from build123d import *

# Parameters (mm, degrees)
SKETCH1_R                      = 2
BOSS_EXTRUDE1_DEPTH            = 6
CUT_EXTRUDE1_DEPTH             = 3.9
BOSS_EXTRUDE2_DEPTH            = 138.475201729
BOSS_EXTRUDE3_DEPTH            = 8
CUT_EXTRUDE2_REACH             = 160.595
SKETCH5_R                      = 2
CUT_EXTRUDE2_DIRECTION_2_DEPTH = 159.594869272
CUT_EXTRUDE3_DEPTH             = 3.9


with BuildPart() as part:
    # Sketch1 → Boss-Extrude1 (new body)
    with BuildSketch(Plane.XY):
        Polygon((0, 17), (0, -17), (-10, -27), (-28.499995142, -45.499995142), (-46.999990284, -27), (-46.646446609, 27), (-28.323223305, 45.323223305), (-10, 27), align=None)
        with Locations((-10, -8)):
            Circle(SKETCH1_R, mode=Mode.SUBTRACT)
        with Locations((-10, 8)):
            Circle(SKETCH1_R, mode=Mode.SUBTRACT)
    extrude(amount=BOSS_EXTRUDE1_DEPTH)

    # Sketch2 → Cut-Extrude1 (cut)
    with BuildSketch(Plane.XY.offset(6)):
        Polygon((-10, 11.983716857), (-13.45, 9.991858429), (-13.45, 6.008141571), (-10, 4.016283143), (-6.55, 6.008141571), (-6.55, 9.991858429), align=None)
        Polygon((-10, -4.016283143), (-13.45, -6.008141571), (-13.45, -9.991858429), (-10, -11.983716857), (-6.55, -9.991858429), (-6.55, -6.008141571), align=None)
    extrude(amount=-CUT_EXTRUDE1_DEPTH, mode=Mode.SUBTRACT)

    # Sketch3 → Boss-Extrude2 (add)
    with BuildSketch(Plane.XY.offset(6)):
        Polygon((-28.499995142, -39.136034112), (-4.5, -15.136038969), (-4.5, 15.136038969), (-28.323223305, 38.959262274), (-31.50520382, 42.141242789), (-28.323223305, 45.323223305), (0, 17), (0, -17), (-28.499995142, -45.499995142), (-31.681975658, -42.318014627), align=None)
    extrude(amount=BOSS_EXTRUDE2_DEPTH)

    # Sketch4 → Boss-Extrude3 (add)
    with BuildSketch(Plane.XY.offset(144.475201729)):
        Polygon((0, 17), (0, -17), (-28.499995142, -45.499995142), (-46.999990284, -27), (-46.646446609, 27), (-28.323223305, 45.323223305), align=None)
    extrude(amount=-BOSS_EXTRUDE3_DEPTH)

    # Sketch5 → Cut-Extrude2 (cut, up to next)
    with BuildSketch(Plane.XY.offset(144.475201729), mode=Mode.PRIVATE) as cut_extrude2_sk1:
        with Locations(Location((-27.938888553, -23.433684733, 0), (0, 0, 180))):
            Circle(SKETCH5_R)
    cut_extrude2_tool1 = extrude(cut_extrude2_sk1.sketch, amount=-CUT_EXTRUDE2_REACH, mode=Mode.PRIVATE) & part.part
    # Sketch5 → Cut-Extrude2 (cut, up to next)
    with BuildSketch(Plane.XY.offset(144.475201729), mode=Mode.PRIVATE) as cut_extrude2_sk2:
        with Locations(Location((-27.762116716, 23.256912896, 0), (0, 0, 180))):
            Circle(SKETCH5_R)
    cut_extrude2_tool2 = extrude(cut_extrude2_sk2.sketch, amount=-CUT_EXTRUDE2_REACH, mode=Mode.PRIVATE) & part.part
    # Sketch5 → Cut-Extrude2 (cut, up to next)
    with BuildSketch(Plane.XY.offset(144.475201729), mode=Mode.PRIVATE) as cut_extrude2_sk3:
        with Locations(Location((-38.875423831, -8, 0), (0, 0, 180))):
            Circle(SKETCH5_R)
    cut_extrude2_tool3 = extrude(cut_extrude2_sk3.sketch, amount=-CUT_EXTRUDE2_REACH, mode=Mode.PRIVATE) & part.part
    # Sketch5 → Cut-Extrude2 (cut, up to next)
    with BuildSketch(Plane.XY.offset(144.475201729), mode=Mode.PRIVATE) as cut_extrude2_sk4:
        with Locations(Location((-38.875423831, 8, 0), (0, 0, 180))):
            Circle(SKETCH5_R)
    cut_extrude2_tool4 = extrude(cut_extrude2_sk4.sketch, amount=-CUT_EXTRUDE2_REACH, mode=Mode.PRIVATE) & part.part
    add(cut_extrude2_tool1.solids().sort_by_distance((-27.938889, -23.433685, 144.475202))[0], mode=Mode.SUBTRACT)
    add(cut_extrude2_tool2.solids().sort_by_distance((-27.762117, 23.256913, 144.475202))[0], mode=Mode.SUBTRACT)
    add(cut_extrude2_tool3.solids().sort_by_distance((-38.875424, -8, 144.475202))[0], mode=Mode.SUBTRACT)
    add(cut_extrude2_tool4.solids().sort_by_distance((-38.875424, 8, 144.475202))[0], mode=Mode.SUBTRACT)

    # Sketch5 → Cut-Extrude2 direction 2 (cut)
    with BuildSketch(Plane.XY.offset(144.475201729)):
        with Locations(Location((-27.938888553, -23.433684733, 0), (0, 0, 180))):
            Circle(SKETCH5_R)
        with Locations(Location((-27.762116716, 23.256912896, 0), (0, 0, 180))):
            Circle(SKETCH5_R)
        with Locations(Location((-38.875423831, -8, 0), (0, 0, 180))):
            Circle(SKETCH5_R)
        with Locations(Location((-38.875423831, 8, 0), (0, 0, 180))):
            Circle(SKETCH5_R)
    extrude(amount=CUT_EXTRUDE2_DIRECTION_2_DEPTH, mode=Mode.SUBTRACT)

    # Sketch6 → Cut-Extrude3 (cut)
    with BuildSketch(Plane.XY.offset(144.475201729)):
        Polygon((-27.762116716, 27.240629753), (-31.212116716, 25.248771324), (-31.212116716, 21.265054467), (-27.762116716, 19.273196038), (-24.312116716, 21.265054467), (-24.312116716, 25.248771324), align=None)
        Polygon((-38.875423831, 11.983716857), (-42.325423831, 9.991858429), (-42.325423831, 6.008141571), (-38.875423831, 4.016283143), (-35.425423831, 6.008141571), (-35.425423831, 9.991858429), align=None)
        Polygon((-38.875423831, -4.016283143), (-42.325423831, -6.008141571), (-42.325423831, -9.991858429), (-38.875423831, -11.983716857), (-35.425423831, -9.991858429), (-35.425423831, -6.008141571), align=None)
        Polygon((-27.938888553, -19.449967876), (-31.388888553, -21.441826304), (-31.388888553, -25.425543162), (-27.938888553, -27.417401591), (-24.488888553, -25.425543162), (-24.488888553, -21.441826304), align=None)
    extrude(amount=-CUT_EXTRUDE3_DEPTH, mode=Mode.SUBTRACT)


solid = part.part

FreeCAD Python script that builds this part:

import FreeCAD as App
import Part
import Sketcher
Q = App.Units.Quantity

doc = App.newDocument("Part")
body = doc.addObject("PartDesign::Body", "Body")

# Sketch on XY plane
sketch1 = body.newObject("Sketcher::SketchObject", "Sketch")
sketch1.AttachmentSupport = (doc.getObject("XY_Plane"), [""])
sketch1.MapMode = "FlatFace"
sketch1.addGeometry([
    Part.LineSegment(App.Vector(0, -17, 0), App.Vector(0, 17, 0)),  # 0
    Part.LineSegment(App.Vector(0, 17, 0), App.Vector(-28.3, 45.3, 0)),  # 1
    Part.LineSegment(App.Vector(-28.3, 45.3, 0), App.Vector(-46.6, 27, 0)),  # 2
    Part.LineSegment(App.Vector(-46.6, 27, 0), App.Vector(-47, -27, 0)),  # 3
    Part.LineSegment(App.Vector(-47, -27, 0), App.Vector(-28.5, -45.5, 0)),  # 4
    Part.LineSegment(App.Vector(-28.5, -45.5, 0), App.Vector(0, -17, 0)),  # 5
    Part.Circle(App.Vector(-10, -8, 0), App.Vector(0, 0, 1), 2),  # 6
    Part.Circle(App.Vector(-10, 8, 0), App.Vector(0, 0, 1), 2),  # 7
], False)
sketch1.addConstraint([
    Sketcher.Constraint("Coincident", 0, 2, 1, 1),
    Sketcher.Constraint("Coincident", 1, 2, 2, 1),
    Sketcher.Constraint("Coincident", 2, 2, 3, 1),
    Sketcher.Constraint("Coincident", 3, 2, 4, 1),
    Sketcher.Constraint("Coincident", 4, 2, 5, 1),
    Sketcher.Constraint("Coincident", 5, 2, 0, 1),
    Sketcher.Constraint("Vertical", 0),
    Sketcher.Constraint("Equal", 6, 7),
    Sketcher.Constraint("Symmetric", 0, 2, 5, 2, -1, 1),
    Sketcher.Constraint("Symmetric", 6, 3, 7, 3, -1),
    Sketcher.Constraint("Perpendicular", 1, 2),
    Sketcher.Constraint("Perpendicular", 2, 4),
    Sketcher.Constraint("Perpendicular", 4, 5),
    Sketcher.Constraint("Diameter", 6, Q("4 mm")),
    Sketcher.Constraint("DistanceY", 0, 1, 0, 2, Q("34 mm")),
    Sketcher.Constraint("Angle", 1, Q("135 deg")),
    Sketcher.Constraint("DistanceX", 6, 3, -1, 1, Q("10 mm")),
    Sketcher.Constraint("DistanceY", 6, 3, -1, 1, Q("8 mm")),
    Sketcher.Constraint("DistanceY", -1, 1, 2, 2, Q("27 mm")),
    Sketcher.Constraint("DistanceY", 3, 2, -1, 1, Q("27 mm")),
    Sketcher.Constraint("Distance", 2, Q("25.912951 mm")),
    Sketcher.Constraint("Distance", 5, Q("40.30508 mm")),
])
pad1 = body.newObject("PartDesign::Pad", "Pad")
pad1.Profile = sketch1
pad1.Length = 6

# Sketch on XY plane
sketch2 = body.newObject("Sketcher::SketchObject", "Sketch001")
sketch2.AttachmentSupport = (doc.getObject("XY_Plane"), [""])
sketch2.MapMode = "FlatFace"
sketch2.AttachmentOffset = App.Placement(App.Vector(0, 0, 6), App.Rotation())
sketch2.addGeometry([
    Part.LineSegment(App.Vector(-10, 12, 0), App.Vector(-13.4, 10, 0)),  # 0
    Part.LineSegment(App.Vector(-13.4, 10, 0), App.Vector(-13.4, 6, 0)),  # 1
    Part.LineSegment(App.Vector(-13.4, 6, 0), App.Vector(-10, 4, 0)),  # 2
    Part.LineSegment(App.Vector(-10, 4, 0), App.Vector(-6.5, 6, 0)),  # 3
    Part.LineSegment(App.Vector(-6.5, 6, 0), App.Vector(-6.5, 10, 0)),  # 4
    Part.LineSegment(App.Vector(-6.5, 10, 0), App.Vector(-10, 12, 0)),  # 5
    Part.LineSegment(App.Vector(-10, -4, 0), App.Vector(-13.4, -6, 0)),  # 6
    Part.LineSegment(App.Vector(-13.4, -6, 0), App.Vector(-13.4, -10, 0)),  # 7
    Part.LineSegment(App.Vector(-13.4, -10, 0), App.Vector(-10, -12, 0)),  # 8
    Part.LineSegment(App.Vector(-10, -12, 0), App.Vector(-6.5, -10, 0)),  # 9
    Part.LineSegment(App.Vector(-6.5, -10, 0), App.Vector(-6.5, -6, 0)),  # 10
    Part.LineSegment(App.Vector(-6.5, -6, 0), App.Vector(-10, -4, 0)),  # 11
], False)
sketch2.addConstraint([
    Sketcher.Constraint("Coincident", 0, 2, 1, 1),
    Sketcher.Constraint("Coincident", 1, 2, 2, 1),
    Sketcher.Constraint("Coincident", 2, 2, 3, 1),
    Sketcher.Constraint("Coincident", 3, 2, 4, 1),
    Sketcher.Constraint("Coincident", 4, 2, 5, 1),
    Sketcher.Constraint("Coincident", 5, 2, 0, 1),
    Sketcher.Constraint("Coincident", 6, 2, 7, 1),
    Sketcher.Constraint("Coincident", 7, 2, 8, 1),
    Sketcher.Constraint("Coincident", 8, 2, 9, 1),
    Sketcher.Constraint("Coincident", 9, 2, 10, 1),
    Sketcher.Constraint("Coincident", 10, 2, 11, 1),
    Sketcher.Constraint("Coincident", 11, 2, 6, 1),
    Sketcher.Constraint("Vertical", 1),
    Sketcher.Constraint("Vertical", 4),
    Sketcher.Constraint("Vertical", 7),
    Sketcher.Constraint("Vertical", 10),
    Sketcher.Constraint("Symmetric", 1, 2, 6, 2, -1),
    Sketcher.Constraint("Symmetric", 5, 2, 8, 2, -1),
    Sketcher.Constraint("Symmetric", 4, 2, 9, 2, -1),
    Sketcher.Constraint("Symmetric", 2, 2, 11, 2, -1),
    Sketcher.Constraint("Parallel", 0, 3),
    Sketcher.Constraint("Parallel", 2, 5),
    Sketcher.Constraint("Parallel", 3, 6),
    Sketcher.Constraint("Parallel", 5, 8),
    Sketcher.Constraint("Parallel", 8, 11),
    Sketcher.Constraint("Horizontal", 1, 2, 3, 2),
    Sketcher.Constraint("Horizontal", 0, 2, 4, 2),
    Sketcher.Constraint("Angle", 0, Q("-150 deg")),
    Sketcher.Constraint("DistanceX", 2, 2, -1, 1, Q("10 mm")),
    Sketcher.Constraint("DistanceY", 6, 2, 0, 2, Q("16 mm")),
    Sketcher.Constraint("DistanceX", 1, 2, 3, 2, Q("6.9 mm")),
    Sketcher.Constraint("DistanceY", 1, 2, 1, 1, Q("3.983717 mm")),
])
pocket1 = body.newObject("PartDesign::Pocket", "Pocket")
pocket1.Profile = sketch2
pocket1.Length = 3.9

# Sketch on XY plane
sketch3 = body.newObject("Sketcher::SketchObject", "Sketch002")
sketch3.AttachmentSupport = (doc.getObject("XY_Plane"), [""])
sketch3.MapMode = "FlatFace"
sketch3.AttachmentOffset = App.Placement(App.Vector(0, 0, 6), App.Rotation())
sketch3.addGeometry([
    Part.LineSegment(App.Vector(-4.5, -15.1, 0), App.Vector(-28.5, -39.1, 0)),  # 0
    Part.LineSegment(App.Vector(-28.5, -39.1, 0), App.Vector(-31.7, -42.3, 0)),  # 1
    Part.LineSegment(App.Vector(-31.7, -42.3, 0), App.Vector(-28.5, -45.5, 0)),  # 2
    Part.LineSegment(App.Vector(-28.5, -45.5, 0), App.Vector(0, -17, 0)),  # 3
    Part.LineSegment(App.Vector(0, -17, 0), App.Vector(0, 17, 0)),  # 4
    Part.LineSegment(App.Vector(0, 17, 0), App.Vector(-28.3, 45.3, 0)),  # 5
    Part.LineSegment(App.Vector(-28.3, 45.3, 0), App.Vector(-31.5, 42.1, 0)),  # 6
    Part.LineSegment(App.Vector(-31.5, 42.1, 0), App.Vector(-4.5, 15.1, 0)),  # 7
    Part.LineSegment(App.Vector(-4.5, 15.1, 0), App.Vector(-4.5, -15.1, 0)),  # 8
], False)
sketch3.addConstraint([
    Sketcher.Constraint("Coincident", 0, 2, 1, 1),
    Sketcher.Constraint("Coincident", 1, 2, 2, 1),
    Sketcher.Constraint("Coincident", 2, 2, 3, 1),
    Sketcher.Constraint("Coincident", 3, 2, 4, 1),
    Sketcher.Constraint("Coincident", 4, 2, 5, 1),
    Sketcher.Constraint("Coincident", 5, 2, 6, 1),
    Sketcher.Constraint("Coincident", 6, 2, 7, 1),
    Sketcher.Constraint("Coincident", 7, 2, 8, 1),
    Sketcher.Constraint("Coincident", 8, 2, 0, 1),
    Sketcher.Constraint("Vertical", 4),
    Sketcher.Constraint("Vertical", 8),
    Sketcher.Constraint("Symmetric", 3, 2, 4, 2, -1, 1),
    Sketcher.Constraint("Parallel", 0, 1),
    Sketcher.Constraint("Perpendicular", 1, 2),
    Sketcher.Constraint("Perpendicular", 2, 3),
    Sketcher.Constraint("Perpendicular", 3, 5),
    Sketcher.Constraint("Perpendicular", 5, 6),
    Sketcher.Constraint("Perpendicular", 6, 7),
    Sketcher.Constraint("Vertical", 0, 2, 2, 2),
    Sketcher.Constraint("Equal", 1, 2),
    Sketcher.Constraint("Equal", 2, 6),
    Sketcher.Constraint("DistanceY", 4, 1, 4, 2, Q("34 mm")),
    Sketcher.Constraint("Distance", 1, Q("4.5 mm")),
    Sketcher.Constraint("DistanceX", 7, 2, -1, 1, Q("4.5 mm")),
    Sketcher.Constraint("Distance", 0, Q("33.941119 mm")),
    Sketcher.Constraint("DistanceX", 0, 2, 5, 2, Q("0.176772 mm")),
])
pad2 = body.newObject("PartDesign::Pad", "Pad001")
pad2.Profile = sketch3
pad2.Length = 138.475202

# Sketch on XY plane
sketch4 = body.newObject("Sketcher::SketchObject", "Sketch003")
sketch4.AttachmentSupport = (doc.getObject("XY_Plane"), [""])
sketch4.MapMode = "FlatFace"
sketch4.AttachmentOffset = App.Placement(App.Vector(0, 0, 144.475202), App.Rotation())
sketch4.addGeometry([
    Part.LineSegment(App.Vector(0, -17, 0), App.Vector(0, 17, 0)),  # 0
    Part.LineSegment(App.Vector(0, 17, 0), App.Vector(-28, 45, 0)),  # 1
    Part.LineSegment(App.Vector(-28, 45, 0), App.Vector(-47, 27, 0)),  # 2
    Part.LineSegment(App.Vector(-47, 27, 0), App.Vector(-47, -27, 0)),  # 3
    Part.LineSegment(App.Vector(-47, -27, 0), App.Vector(-28, -45, 0)),  # 4
    Part.LineSegment(App.Vector(-28, -45, 0), App.Vector(0, -17, 0)),  # 5
], False)
sketch4.addConstraint([
    Sketcher.Constraint("Coincident", 0, 2, 1, 1),
    Sketcher.Constraint("Coincident", 1, 2, 2, 1),
    Sketcher.Constraint("Coincident", 2, 2, 3, 1),
    Sketcher.Constraint("Coincident", 3, 2, 4, 1),
    Sketcher.Constraint("Coincident", 4, 2, 5, 1),
    Sketcher.Constraint("Coincident", 5, 2, 0, 1),
    Sketcher.Constraint("Vertical", 0),
    Sketcher.Constraint("Symmetric", 0, 2, 5, 2, -1, 1),
    Sketcher.Constraint("Perpendicular", 1, 2),
    Sketcher.Constraint("Perpendicular", 2, 4),
    Sketcher.Constraint("Perpendicular", 4, 5),
    Sketcher.Constraint("DistanceY", 0, 1, 0, 2, Q("34 mm")),
    Sketcher.Constraint("Angle", 1, Q("135 deg")),
    Sketcher.Constraint("DistanceY", -1, 1, 2, 2, Q("27 mm")),
    Sketcher.Constraint("DistanceY", 3, 2, -1, 1, Q("27 mm")),
    Sketcher.Constraint("Distance", 2, Q("25.912951 mm")),
    Sketcher.Constraint("Distance", 5, Q("40.30508 mm")),
])
pad3 = body.newObject("PartDesign::Pad", "Pad002")
pad3.Profile = sketch4
pad3.Length = 8
pad3.Reversed = True

# Sketch on XY plane
sketch5 = body.newObject("Sketcher::SketchObject", "Sketch004")
sketch5.AttachmentSupport = (doc.getObject("XY_Plane"), [""])
sketch5.MapMode = "FlatFace"
sketch5.AttachmentOffset = App.Placement(App.Vector(0, 0, 144.475202), App.Rotation())
sketch5.addGeometry(Part.Circle(App.Vector(-27.9, -23.4, 0), App.Vector(0, 0, 1), 2), False)
sketch5.addConstraint([
    Sketcher.Constraint("Diameter", 0, Q("4 mm")),
    Sketcher.Constraint("DistanceX", 0, 3, -1, 1, Q("27.938889 mm")),
    Sketcher.Constraint("DistanceY", 0, 3, -1, 1, Q("23.433685 mm")),
])
pocket2 = body.newObject("PartDesign::Pocket", "Pocket001")
pocket2.Profile = sketch5
pocket2.Type = "UpToFirst"

# Sketch on XY plane
sketch6 = body.newObject("Sketcher::SketchObject", "Sketch005")
sketch6.AttachmentSupport = (doc.getObject("XY_Plane"), [""])
sketch6.MapMode = "FlatFace"
sketch6.AttachmentOffset = App.Placement(App.Vector(0, 0, 144.475202), App.Rotation())
sketch6.addGeometry(Part.Circle(App.Vector(-27.8, 23.3, 0), App.Vector(0, 0, 1), 2), False)
sketch6.addConstraint([
    Sketcher.Constraint("Diameter", 0, Q("4 mm")),
    Sketcher.Constraint("DistanceX", 0, 3, -1, 1, Q("27.762117 mm")),
    Sketcher.Constraint("DistanceY", -1, 1, 0, 3, Q("23.256913 mm")),
])
pocket3 = body.newObject("PartDesign::Pocket", "Pocket002")
pocket3.Profile = sketch6
pocket3.Type = "UpToFirst"

# Sketch on XY plane
sketch7 = body.newObject("Sketcher::SketchObject", "Sketch006")
sketch7.AttachmentSupport = (doc.getObject("XY_Plane"), [""])
sketch7.MapMode = "FlatFace"
sketch7.AttachmentOffset = App.Placement(App.Vector(0, 0, 144.475202), App.Rotation())
sketch7.addGeometry(Part.Circle(App.Vector(-38.9, -8, 0), App.Vector(0, 0, 1), 2), False)
sketch7.addConstraint([
    Sketcher.Constraint("Diameter", 0, Q("4 mm")),
    Sketcher.Constraint("DistanceY", 0, 3, -1, 1, Q("8 mm")),
    Sketcher.Constraint("DistanceX", 0, 3, -1, 1, Q("38.875424 mm")),
])
pocket4 = body.newObject("PartDesign::Pocket", "Pocket003")
pocket4.Profile = sketch7
pocket4.Type = "UpToFirst"

# Sketch on XY plane
sketch8 = body.newObject("Sketcher::SketchObject", "Sketch007")
sketch8.AttachmentSupport = (doc.getObject("XY_Plane"), [""])
sketch8.MapMode = "FlatFace"
sketch8.AttachmentOffset = App.Placement(App.Vector(0, 0, 144.475202), App.Rotation())
sketch8.addGeometry(Part.Circle(App.Vector(-38.9, 8, 0), App.Vector(0, 0, 1), 2), False)
sketch8.addConstraint([
    Sketcher.Constraint("Diameter", 0, Q("4 mm")),
    Sketcher.Constraint("DistanceY", -1, 1, 0, 3, Q("8 mm")),
    Sketcher.Constraint("DistanceX", 0, 3, -1, 1, Q("38.875424 mm")),
])
pocket5 = body.newObject("PartDesign::Pocket", "Pocket004")
pocket5.Profile = sketch8
pocket5.Type = "UpToFirst"

# Sketch on XY plane
sketch9 = body.newObject("Sketcher::SketchObject", "Sketch008")
sketch9.AttachmentSupport = (doc.getObject("XY_Plane"), [""])
sketch9.MapMode = "FlatFace"
sketch9.AttachmentOffset = App.Placement(App.Vector(0, 0, 144.475202), App.Rotation())
sketch9.addGeometry([
    Part.Circle(App.Vector(-27.9, -23.4, 0), App.Vector(0, 0, 1), 2),
    Part.Circle(App.Vector(-27.8, 23.3, 0), App.Vector(0, 0, 1), 2),
    Part.Circle(App.Vector(-38.9, -8, 0), App.Vector(0, 0, 1), 2),
    Part.Circle(App.Vector(-38.9, 8, 0), App.Vector(0, 0, 1), 2),
], False)
sketch9.addConstraint([
    Sketcher.Constraint("Equal", 0, 1),
    Sketcher.Constraint("Equal", 1, 2),
    Sketcher.Constraint("Equal", 2, 3),
    Sketcher.Constraint("Symmetric", 2, 3, 3, 3, -1),
    Sketcher.Constraint("Diameter", 0, Q("4 mm")),
    Sketcher.Constraint("DistanceY", 2, 3, -1, 1, Q("8 mm")),
    Sketcher.Constraint("DistanceX", 0, 3, -1, 1, Q("27.938889 mm")),
    Sketcher.Constraint("DistanceX", 0, 3, 1, 3, Q("0.176772 mm")),
    Sketcher.Constraint("DistanceY", 0, 3, -1, 1, Q("23.433685 mm")),
    Sketcher.Constraint("DistanceY", -1, 1, 1, 3, Q("23.256913 mm")),
    Sketcher.Constraint("DistanceX", 2, 3, -1, 1, Q("38.875424 mm")),
])
pocket6 = body.newObject("PartDesign::Pocket", "Pocket005")
pocket6.Profile = sketch9
pocket6.Length = 159.594869
pocket6.Reversed = True

# Sketch on XY plane
sketch10 = body.newObject("Sketcher::SketchObject", "Sketch009")
sketch10.AttachmentSupport = (doc.getObject("XY_Plane"), [""])
sketch10.MapMode = "FlatFace"
sketch10.AttachmentOffset = App.Placement(App.Vector(0, 0, 144.475202), App.Rotation())
sketch10.addGeometry([
    Part.LineSegment(App.Vector(-27.8, 27.2, 0), App.Vector(-31.2, 25.2, 0)),  # 0
    Part.LineSegment(App.Vector(-31.2, 25.2, 0), App.Vector(-31.2, 21.3, 0)),  # 1
    Part.LineSegment(App.Vector(-31.2, 21.3, 0), App.Vector(-27.8, 19.3, 0)),  # 2
    Part.LineSegment(App.Vector(-27.8, 19.3, 0), App.Vector(-24.3, 21.3, 0)),  # 3
    Part.LineSegment(App.Vector(-24.3, 21.3, 0), App.Vector(-24.3, 25.2, 0)),  # 4
    Part.LineSegment(App.Vector(-24.3, 25.2, 0), App.Vector(-27.8, 27.2, 0)),  # 5
    Part.LineSegment(App.Vector(-38.9, 12, 0), App.Vector(-42.3, 10, 0)),  # 6
    Part.LineSegment(App.Vector(-42.3, 10, 0), App.Vector(-42.3, 6, 0)),  # 7
    Part.LineSegment(App.Vector(-42.3, 6, 0), App.Vector(-38.9, 4, 0)),  # 8
    Part.LineSegment(App.Vector(-38.9, 4, 0), App.Vector(-35.4, 6, 0)),  # 9
    Part.LineSegment(App.Vector(-35.4, 6, 0), App.Vector(-35.4, 10, 0)),  # 10
    Part.LineSegment(App.Vector(-35.4, 10, 0), App.Vector(-38.9, 12, 0)),  # 11
    Part.LineSegment(App.Vector(-38.9, -4, 0), App.Vector(-42.3, -6, 0)),  # 12
    Part.LineSegment(App.Vector(-42.3, -6, 0), App.Vector(-42.3, -10, 0)),  # 13
    Part.LineSegment(App.Vector(-42.3, -10, 0), App.Vector(-38.9, -12, 0)),  # 14
    Part.LineSegment(App.Vector(-38.9, -12, 0), App.Vector(-35.4, -10, 0)),  # 15
    Part.LineSegment(App.Vector(-35.4, -10, 0), App.Vector(-35.4, -6, 0)),  # 16
    Part.LineSegment(App.Vector(-35.4, -6, 0), App.Vector(-38.9, -4, 0)),  # 17
    Part.LineSegment(App.Vector(-27.9, -19.4, 0), App.Vector(-31.4, -21.4, 0)),  # 18
    Part.LineSegment(App.Vector(-31.4, -21.4, 0), App.Vector(-31.4, -25.4, 0)),  # 19
    Part.LineSegment(App.Vector(-31.4, -25.4, 0), App.Vector(-27.9, -27.4, 0)),  # 20
    Part.LineSegment(App.Vector(-27.9, -27.4, 0), App.Vector(-24.5, -25.4, 0)),  # 21
    Part.LineSegment(App.Vector(-24.5, -25.4, 0), App.Vector(-24.5, -21.4, 0)),  # 22
    Part.LineSegment(App.Vector(-24.5, -21.4, 0), App.Vector(-27.9, -19.4, 0)),  # 23
], False)
sketch10.addConstraint([
    Sketcher.Constraint("Coincident", 0, 2, 1, 1),
    Sketcher.Constraint("Coincident", 1, 2, 2, 1),
    Sketcher.Constraint("Coincident", 2, 2, 3, 1),
    Sketcher.Constraint("Coincident", 3, 2, 4, 1),
    Sketcher.Constraint("Coincident", 4, 2, 5, 1),
    Sketcher.Constraint("Coincident", 5, 2, 0, 1),
    Sketcher.Constraint("Coincident", 6, 2, 7, 1),
    Sketcher.Constraint("Coincident", 7, 2, 8, 1),
    Sketcher.Constraint("Coincident", 8, 2, 9, 1),
    Sketcher.Constraint("Coincident", 9, 2, 10, 1),
    Sketcher.Constraint("Coincident", 10, 2, 11, 1),
    Sketcher.Constraint("Coincident", 11, 2, 6, 1),
    Sketcher.Constraint("Coincident", 12, 2, 13, 1),
    Sketcher.Constraint("Coincident", 13, 2, 14, 1),
    Sketcher.Constraint("Coincident", 14, 2, 15, 1),
    Sketcher.Constraint("Coincident", 15, 2, 16, 1),
    Sketcher.Constraint("Coincident", 16, 2, 17, 1),
    Sketcher.Constraint("Coincident", 17, 2, 12, 1),
    Sketcher.Constraint("Coincident", 18, 2, 19, 1),
    Sketcher.Constraint("Coincident", 19, 2, 20, 1),
    Sketcher.Constraint("Coincident", 20, 2, 21, 1),
    Sketcher.Constraint("Coincident", 21, 2, 22, 1),
    Sketcher.Constraint("Coincident", 22, 2, 23, 1),
    Sketcher.Constraint("Coincident", 23, 2, 18, 1),
    Sketcher.Constraint("Vertical", 1),
    Sketcher.Constraint("Vertical", 4),
    Sketcher.Constraint("Vertical", 7),
    Sketcher.Constraint("Vertical", 10),
    Sketcher.Constraint("Vertical", 13),
    Sketcher.Constraint("Vertical", 16),
    Sketcher.Constraint("Vertical", 19),
    Sketcher.Constraint("Vertical", 22),
    Sketcher.Constraint("Symmetric", 7, 2, 12, 2, -1),
    Sketcher.Constraint("Symmetric", 11, 2, 14, 2, -1),
    Sketcher.Constraint("Symmetric", 10, 2, 15, 2, -1),
    Sketcher.Constraint("Symmetric", 8, 2, 17, 2, -1),
    Sketcher.Constraint("Parallel", 0, 3),
    Sketcher.Constraint("Parallel", 2, 5),
    Sketcher.Constraint("Parallel", 3, 6),
    Sketcher.Constraint("Parallel", 5, 8),
    Sketcher.Constraint("Parallel", 6, 9),
    Sketcher.Constraint("Parallel", 8, 11),
    Sketcher.Constraint("Parallel", 9, 12),
    Sketcher.Constraint("Parallel", 11, 14),
    Sketcher.Constraint("Parallel", 14, 17),
    Sketcher.Constraint("Parallel", 15, 18),
    Sketcher.Constraint("Parallel", 17, 20),
    Sketcher.Constraint("Parallel", 18, 21),
    Sketcher.Constraint("Parallel", 20, 23),
    Sketcher.Constraint("Horizontal", 1, 2, 3, 2),
    Sketcher.Constraint("Horizontal", 0, 2, 4, 2),
    Sketcher.Constraint("Horizontal", 7, 2, 9, 2),
    Sketcher.Constraint("Horizontal", 6, 2, 10, 2),
    Sketcher.Constraint("Horizontal", 19, 2, 21, 2),
    Sketcher.Constraint("Horizontal", 18, 2, 22, 2),
    Sketcher.Constraint("Equal", 4, 7),
    Sketcher.Constraint("Equal", 16, 19),
    Sketcher.Constraint("Equal", 5, 6),
    Sketcher.Constraint("Equal", 17, 18),
    Sketcher.Constraint("Angle", 0, Q("-150 deg")),
    Sketcher.Constraint("DistanceY", 12, 2, 6, 2, Q("16 mm")),
    Sketcher.Constraint("DistanceX", 1, 2, 3, 2, Q("6.9 mm")),
    Sketcher.Constraint("DistanceY", 20, 2, -1, 1, Q("27.417402 mm")),
    Sketcher.Constraint("DistanceY", 19, 2, 16, 2, Q("19.417402 mm")),
    Sketcher.Constraint("DistanceY", -1, 1, 0, 2, Q("25.248771 mm")),
    Sketcher.Constraint("DistanceX", 18, 2, -1, 1, Q("31.388889 mm")),
    Sketcher.Constraint("DistanceX", 0, 2, -1, 1, Q("31.212117 mm")),
    Sketcher.Constraint("DistanceX", 6, 2, -1, 1, Q("42.325424 mm")),
])
pocket7 = body.newObject("PartDesign::Pocket", "Pocket006")
pocket7.Profile = sketch10
pocket7.Length = 3.9

doc.recompute()
